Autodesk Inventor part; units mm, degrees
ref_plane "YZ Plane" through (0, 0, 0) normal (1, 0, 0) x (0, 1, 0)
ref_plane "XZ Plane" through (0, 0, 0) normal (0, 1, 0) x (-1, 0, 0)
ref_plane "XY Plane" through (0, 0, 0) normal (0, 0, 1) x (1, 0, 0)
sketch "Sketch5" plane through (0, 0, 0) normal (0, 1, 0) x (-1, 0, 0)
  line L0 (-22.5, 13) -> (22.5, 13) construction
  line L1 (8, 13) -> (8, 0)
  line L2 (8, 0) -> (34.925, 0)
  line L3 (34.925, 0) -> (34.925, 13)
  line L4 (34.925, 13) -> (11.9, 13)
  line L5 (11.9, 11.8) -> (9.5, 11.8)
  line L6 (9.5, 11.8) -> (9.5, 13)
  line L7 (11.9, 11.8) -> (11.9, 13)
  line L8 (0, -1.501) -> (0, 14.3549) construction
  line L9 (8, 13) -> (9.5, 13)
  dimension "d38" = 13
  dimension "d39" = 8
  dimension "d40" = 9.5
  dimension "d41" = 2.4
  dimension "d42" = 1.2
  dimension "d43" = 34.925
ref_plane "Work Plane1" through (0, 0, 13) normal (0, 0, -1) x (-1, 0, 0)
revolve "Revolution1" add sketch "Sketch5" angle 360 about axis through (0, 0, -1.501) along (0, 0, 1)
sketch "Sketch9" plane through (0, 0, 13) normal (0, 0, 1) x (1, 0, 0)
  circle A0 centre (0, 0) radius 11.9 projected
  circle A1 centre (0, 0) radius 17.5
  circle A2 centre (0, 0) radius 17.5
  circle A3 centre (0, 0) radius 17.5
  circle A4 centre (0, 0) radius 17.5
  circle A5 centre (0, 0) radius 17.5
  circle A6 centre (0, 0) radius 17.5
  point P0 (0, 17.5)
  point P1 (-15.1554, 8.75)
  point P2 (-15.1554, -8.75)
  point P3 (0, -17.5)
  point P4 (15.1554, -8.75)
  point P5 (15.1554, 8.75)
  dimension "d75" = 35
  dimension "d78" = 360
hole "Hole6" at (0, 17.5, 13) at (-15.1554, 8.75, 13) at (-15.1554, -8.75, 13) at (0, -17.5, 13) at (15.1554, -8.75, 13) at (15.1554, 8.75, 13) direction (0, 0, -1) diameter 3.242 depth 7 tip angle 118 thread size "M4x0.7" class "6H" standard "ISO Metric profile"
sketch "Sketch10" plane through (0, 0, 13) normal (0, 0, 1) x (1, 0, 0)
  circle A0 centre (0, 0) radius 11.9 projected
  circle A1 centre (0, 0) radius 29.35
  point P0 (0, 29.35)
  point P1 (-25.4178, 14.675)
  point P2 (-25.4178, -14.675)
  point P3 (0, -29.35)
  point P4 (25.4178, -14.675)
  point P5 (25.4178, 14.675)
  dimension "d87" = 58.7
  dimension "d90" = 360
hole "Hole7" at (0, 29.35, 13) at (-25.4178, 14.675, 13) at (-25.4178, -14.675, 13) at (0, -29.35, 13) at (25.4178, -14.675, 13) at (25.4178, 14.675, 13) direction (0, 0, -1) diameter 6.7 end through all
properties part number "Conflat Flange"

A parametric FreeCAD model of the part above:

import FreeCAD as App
import Part
import Sketcher

V = App.Vector


def add_polygon(sketch, points):
    """Adds a closed chain of lines whose ends are joined by coincident constraints."""
    first, n = sketch.GeometryCount, len(points)
    for a, b in zip(points, points[1:] + points[:1]):
        sketch.addGeometry(Part.LineSegment(App.Vector(*a, 0), App.Vector(*b, 0)), False)
    for i in range(n):
        sketch.addConstraint(Sketcher.Constraint("Coincident", first + i, 2, first + (i + 1) % n, 1))

doc = App.newDocument("Part")
body = doc.addObject("PartDesign::Body", "Body")

# Sketch on XZ plane
sketch1 = body.newObject("Sketcher::SketchObject", "Sketch")
sketch1.AttachmentSupport = (doc.getObject("XZ_Plane"), [""])
sketch1.MapMode = "FlatFace"
add_polygon(sketch1, [(-9.5, 13), (-8, 13), (-8, 0), (-34.925, 0), (-34.925, 13), (-11.9, 13), (-11.9, 11.8), (-9.5, 11.8)])  # lines 0-7
sketch1.addConstraint([
    Sketcher.Constraint("Horizontal", 0),
    Sketcher.Constraint("Vertical", 1),
    Sketcher.Constraint("Horizontal", 2),
    Sketcher.Constraint("Vertical", 3),
    Sketcher.Constraint("Horizontal", 4),
    Sketcher.Constraint("Vertical", 5),
    Sketcher.Constraint("Horizontal", 6),
    Sketcher.Constraint("Vertical", 7),
    Sketcher.Constraint("PointOnObject", 1, 2, -1),
    Sketcher.Constraint("Horizontal", 0, 2, 3, 2),
    Sketcher.Constraint("DistanceY", 1, 2, 1, 1, 13.0),
    Sketcher.Constraint("DistanceX", 6, 1, 6, 2, 2.4),
    Sketcher.Constraint("DistanceY", 5, 2, 5, 1, 1.2),
    Sketcher.Constraint("DistanceX", 0, 2, -1, 1, 8.0),
    Sketcher.Constraint("DistanceX", 6, 2, -1, 1, 9.5),
    Sketcher.Constraint("DistanceX", 2, 2, -1, 1, 34.925),
])
revolution = body.newObject("PartDesign::Revolution", "Revolution")
revolution.Profile = sketch1
revolution.ReferenceAxis = (sketch1, ["V_Axis"])
revolution.Angle = 360

# Sketch on XY plane
sketch2 = body.newObject("Sketcher::SketchObject", "Sketch001")
sketch2.AttachmentSupport = (doc.getObject("XY_Plane"), [""])
sketch2.MapMode = "FlatFace"
sketch2.AttachmentOffset = App.Placement(V(0, 0, 13), App.Rotation())
sketch2.addGeometry([
    Part.Circle(V(0, 17.5, 0), V(0, 0, 1), 1.621),  # 0
    Part.Circle(V(-15.1554, 8.75, 0), V(0, 0, 1), 1.621),  # 1
    Part.Circle(V(-15.1554, -8.75, 0), V(0, 0, 1), 1.621),  # 2
    Part.Circle(V(0, -17.5, 0), V(0, 0, 1), 1.621),  # 3
    Part.Circle(V(15.1554, -8.75, 0), V(0, 0, 1), 1.621),  # 4
    Part.Circle(V(15.1554, 8.75, 0), V(0, 0, 1), 1.621),  # 5
], False)
sketch2.addConstraint([
    Sketcher.Constraint("Equal", 0, 1),
    Sketcher.Constraint("Equal", 1, 2),
    Sketcher.Constraint("Equal", 2, 3),
    Sketcher.Constraint("Equal", 3, 4),
    Sketcher.Constraint("Equal", 4, 5),
    Sketcher.Constraint("Symmetric", 0, 3, 3, 3, -1, 1),
    Sketcher.Constraint("Symmetric", 1, 3, 4, 3, -1, 1),
    Sketcher.Constraint("Symmetric", 2, 3, 5, 3, -1, 1),
    Sketcher.Constraint("Symmetric", 2, 3, 4, 3, -2),
    Sketcher.Constraint("PointOnObject", 0, 3, -2),
    Sketcher.Constraint("Diameter", 0, 3.242),
    Sketcher.Constraint("DistanceY", 3, 3, 0, 3, 35.0),
    Sketcher.Constraint("DistanceY", 2, 3, 1, 3, 17.5),
    Sketcher.Constraint("DistanceX", 1, 3, -1, 1, 15.1554),
])
doc.recompute()
hole = body.newObject("PartDesign::Hole", "Hole")
hole.Profile = sketch2
hole.ThreadType = "None"
hole.Diameter = 3.242
hole.DepthType = "Dimension"
hole.Depth = 7
hole.DrillPoint = "Angled"
hole.DrillPointAngle = 118

# Sketch on XY plane
sketch3 = body.newObject("Sketcher::SketchObject", "Sketch002")
sketch3.AttachmentSupport = (doc.getObject("XY_Plane"), [""])
sketch3.MapMode = "FlatFace"
sketch3.AttachmentOffset = App.Placement(V(0, 0, 13), App.Rotation())
sketch3.addGeometry([
    Part.Circle(V(0, 29.35, 0), V(0, 0, 1), 3.35),  # 0
    Part.Circle(V(-25.4178, 14.675, 0), V(0, 0, 1), 3.35),  # 1
    Part.Circle(V(-25.4178, -14.675, 0), V(0, 0, 1), 3.35),  # 2
    Part.Circle(V(0, -29.35, 0), V(0, 0, 1), 3.35),  # 3
    Part.Circle(V(25.4178, -14.675, 0), V(0, 0, 1), 3.35),  # 4
    Part.Circle(V(25.4178, 14.675, 0), V(0, 0, 1), 3.35),  # 5
], False)
sketch3.addConstraint([
    Sketcher.Constraint("Equal", 0, 1),
    Sketcher.Constraint("Equal", 1, 2),
    Sketcher.Constraint("Equal", 2, 3),
    Sketcher.Constraint("Equal", 3, 4),
    Sketcher.Constraint("Equal", 4, 5),
    Sketcher.Constraint("Symmetric", 0, 3, 3, 3, -1, 1),
    Sketcher.Constraint("Symmetric", 1, 3, 4, 3, -1, 1),
    Sketcher.Constraint("Symmetric", 2, 3, 5, 3, -1, 1),
    Sketcher.Constraint("Symmetric", 2, 3, 4, 3, -2),
    Sketcher.Constraint("PointOnObject", 0, 3, -2),
    Sketcher.Constraint("Diameter", 0, 6.7),
    Sketcher.Constraint("DistanceY", 3, 3, 0, 3, 58.7),
    Sketcher.Constraint("DistanceY", 2, 3, 1, 3, 29.35),
    Sketcher.Constraint("DistanceX", 1, 3, -1, 1, 25.4178),
])
doc.recompute()
hole2 = body.newObject("PartDesign::Hole", "Hole001")
hole2.Profile = sketch3
hole2.ThreadType = "None"
hole2.Diameter = 6.7
hole2.DepthType = "ThroughAll"

doc.recompute()
